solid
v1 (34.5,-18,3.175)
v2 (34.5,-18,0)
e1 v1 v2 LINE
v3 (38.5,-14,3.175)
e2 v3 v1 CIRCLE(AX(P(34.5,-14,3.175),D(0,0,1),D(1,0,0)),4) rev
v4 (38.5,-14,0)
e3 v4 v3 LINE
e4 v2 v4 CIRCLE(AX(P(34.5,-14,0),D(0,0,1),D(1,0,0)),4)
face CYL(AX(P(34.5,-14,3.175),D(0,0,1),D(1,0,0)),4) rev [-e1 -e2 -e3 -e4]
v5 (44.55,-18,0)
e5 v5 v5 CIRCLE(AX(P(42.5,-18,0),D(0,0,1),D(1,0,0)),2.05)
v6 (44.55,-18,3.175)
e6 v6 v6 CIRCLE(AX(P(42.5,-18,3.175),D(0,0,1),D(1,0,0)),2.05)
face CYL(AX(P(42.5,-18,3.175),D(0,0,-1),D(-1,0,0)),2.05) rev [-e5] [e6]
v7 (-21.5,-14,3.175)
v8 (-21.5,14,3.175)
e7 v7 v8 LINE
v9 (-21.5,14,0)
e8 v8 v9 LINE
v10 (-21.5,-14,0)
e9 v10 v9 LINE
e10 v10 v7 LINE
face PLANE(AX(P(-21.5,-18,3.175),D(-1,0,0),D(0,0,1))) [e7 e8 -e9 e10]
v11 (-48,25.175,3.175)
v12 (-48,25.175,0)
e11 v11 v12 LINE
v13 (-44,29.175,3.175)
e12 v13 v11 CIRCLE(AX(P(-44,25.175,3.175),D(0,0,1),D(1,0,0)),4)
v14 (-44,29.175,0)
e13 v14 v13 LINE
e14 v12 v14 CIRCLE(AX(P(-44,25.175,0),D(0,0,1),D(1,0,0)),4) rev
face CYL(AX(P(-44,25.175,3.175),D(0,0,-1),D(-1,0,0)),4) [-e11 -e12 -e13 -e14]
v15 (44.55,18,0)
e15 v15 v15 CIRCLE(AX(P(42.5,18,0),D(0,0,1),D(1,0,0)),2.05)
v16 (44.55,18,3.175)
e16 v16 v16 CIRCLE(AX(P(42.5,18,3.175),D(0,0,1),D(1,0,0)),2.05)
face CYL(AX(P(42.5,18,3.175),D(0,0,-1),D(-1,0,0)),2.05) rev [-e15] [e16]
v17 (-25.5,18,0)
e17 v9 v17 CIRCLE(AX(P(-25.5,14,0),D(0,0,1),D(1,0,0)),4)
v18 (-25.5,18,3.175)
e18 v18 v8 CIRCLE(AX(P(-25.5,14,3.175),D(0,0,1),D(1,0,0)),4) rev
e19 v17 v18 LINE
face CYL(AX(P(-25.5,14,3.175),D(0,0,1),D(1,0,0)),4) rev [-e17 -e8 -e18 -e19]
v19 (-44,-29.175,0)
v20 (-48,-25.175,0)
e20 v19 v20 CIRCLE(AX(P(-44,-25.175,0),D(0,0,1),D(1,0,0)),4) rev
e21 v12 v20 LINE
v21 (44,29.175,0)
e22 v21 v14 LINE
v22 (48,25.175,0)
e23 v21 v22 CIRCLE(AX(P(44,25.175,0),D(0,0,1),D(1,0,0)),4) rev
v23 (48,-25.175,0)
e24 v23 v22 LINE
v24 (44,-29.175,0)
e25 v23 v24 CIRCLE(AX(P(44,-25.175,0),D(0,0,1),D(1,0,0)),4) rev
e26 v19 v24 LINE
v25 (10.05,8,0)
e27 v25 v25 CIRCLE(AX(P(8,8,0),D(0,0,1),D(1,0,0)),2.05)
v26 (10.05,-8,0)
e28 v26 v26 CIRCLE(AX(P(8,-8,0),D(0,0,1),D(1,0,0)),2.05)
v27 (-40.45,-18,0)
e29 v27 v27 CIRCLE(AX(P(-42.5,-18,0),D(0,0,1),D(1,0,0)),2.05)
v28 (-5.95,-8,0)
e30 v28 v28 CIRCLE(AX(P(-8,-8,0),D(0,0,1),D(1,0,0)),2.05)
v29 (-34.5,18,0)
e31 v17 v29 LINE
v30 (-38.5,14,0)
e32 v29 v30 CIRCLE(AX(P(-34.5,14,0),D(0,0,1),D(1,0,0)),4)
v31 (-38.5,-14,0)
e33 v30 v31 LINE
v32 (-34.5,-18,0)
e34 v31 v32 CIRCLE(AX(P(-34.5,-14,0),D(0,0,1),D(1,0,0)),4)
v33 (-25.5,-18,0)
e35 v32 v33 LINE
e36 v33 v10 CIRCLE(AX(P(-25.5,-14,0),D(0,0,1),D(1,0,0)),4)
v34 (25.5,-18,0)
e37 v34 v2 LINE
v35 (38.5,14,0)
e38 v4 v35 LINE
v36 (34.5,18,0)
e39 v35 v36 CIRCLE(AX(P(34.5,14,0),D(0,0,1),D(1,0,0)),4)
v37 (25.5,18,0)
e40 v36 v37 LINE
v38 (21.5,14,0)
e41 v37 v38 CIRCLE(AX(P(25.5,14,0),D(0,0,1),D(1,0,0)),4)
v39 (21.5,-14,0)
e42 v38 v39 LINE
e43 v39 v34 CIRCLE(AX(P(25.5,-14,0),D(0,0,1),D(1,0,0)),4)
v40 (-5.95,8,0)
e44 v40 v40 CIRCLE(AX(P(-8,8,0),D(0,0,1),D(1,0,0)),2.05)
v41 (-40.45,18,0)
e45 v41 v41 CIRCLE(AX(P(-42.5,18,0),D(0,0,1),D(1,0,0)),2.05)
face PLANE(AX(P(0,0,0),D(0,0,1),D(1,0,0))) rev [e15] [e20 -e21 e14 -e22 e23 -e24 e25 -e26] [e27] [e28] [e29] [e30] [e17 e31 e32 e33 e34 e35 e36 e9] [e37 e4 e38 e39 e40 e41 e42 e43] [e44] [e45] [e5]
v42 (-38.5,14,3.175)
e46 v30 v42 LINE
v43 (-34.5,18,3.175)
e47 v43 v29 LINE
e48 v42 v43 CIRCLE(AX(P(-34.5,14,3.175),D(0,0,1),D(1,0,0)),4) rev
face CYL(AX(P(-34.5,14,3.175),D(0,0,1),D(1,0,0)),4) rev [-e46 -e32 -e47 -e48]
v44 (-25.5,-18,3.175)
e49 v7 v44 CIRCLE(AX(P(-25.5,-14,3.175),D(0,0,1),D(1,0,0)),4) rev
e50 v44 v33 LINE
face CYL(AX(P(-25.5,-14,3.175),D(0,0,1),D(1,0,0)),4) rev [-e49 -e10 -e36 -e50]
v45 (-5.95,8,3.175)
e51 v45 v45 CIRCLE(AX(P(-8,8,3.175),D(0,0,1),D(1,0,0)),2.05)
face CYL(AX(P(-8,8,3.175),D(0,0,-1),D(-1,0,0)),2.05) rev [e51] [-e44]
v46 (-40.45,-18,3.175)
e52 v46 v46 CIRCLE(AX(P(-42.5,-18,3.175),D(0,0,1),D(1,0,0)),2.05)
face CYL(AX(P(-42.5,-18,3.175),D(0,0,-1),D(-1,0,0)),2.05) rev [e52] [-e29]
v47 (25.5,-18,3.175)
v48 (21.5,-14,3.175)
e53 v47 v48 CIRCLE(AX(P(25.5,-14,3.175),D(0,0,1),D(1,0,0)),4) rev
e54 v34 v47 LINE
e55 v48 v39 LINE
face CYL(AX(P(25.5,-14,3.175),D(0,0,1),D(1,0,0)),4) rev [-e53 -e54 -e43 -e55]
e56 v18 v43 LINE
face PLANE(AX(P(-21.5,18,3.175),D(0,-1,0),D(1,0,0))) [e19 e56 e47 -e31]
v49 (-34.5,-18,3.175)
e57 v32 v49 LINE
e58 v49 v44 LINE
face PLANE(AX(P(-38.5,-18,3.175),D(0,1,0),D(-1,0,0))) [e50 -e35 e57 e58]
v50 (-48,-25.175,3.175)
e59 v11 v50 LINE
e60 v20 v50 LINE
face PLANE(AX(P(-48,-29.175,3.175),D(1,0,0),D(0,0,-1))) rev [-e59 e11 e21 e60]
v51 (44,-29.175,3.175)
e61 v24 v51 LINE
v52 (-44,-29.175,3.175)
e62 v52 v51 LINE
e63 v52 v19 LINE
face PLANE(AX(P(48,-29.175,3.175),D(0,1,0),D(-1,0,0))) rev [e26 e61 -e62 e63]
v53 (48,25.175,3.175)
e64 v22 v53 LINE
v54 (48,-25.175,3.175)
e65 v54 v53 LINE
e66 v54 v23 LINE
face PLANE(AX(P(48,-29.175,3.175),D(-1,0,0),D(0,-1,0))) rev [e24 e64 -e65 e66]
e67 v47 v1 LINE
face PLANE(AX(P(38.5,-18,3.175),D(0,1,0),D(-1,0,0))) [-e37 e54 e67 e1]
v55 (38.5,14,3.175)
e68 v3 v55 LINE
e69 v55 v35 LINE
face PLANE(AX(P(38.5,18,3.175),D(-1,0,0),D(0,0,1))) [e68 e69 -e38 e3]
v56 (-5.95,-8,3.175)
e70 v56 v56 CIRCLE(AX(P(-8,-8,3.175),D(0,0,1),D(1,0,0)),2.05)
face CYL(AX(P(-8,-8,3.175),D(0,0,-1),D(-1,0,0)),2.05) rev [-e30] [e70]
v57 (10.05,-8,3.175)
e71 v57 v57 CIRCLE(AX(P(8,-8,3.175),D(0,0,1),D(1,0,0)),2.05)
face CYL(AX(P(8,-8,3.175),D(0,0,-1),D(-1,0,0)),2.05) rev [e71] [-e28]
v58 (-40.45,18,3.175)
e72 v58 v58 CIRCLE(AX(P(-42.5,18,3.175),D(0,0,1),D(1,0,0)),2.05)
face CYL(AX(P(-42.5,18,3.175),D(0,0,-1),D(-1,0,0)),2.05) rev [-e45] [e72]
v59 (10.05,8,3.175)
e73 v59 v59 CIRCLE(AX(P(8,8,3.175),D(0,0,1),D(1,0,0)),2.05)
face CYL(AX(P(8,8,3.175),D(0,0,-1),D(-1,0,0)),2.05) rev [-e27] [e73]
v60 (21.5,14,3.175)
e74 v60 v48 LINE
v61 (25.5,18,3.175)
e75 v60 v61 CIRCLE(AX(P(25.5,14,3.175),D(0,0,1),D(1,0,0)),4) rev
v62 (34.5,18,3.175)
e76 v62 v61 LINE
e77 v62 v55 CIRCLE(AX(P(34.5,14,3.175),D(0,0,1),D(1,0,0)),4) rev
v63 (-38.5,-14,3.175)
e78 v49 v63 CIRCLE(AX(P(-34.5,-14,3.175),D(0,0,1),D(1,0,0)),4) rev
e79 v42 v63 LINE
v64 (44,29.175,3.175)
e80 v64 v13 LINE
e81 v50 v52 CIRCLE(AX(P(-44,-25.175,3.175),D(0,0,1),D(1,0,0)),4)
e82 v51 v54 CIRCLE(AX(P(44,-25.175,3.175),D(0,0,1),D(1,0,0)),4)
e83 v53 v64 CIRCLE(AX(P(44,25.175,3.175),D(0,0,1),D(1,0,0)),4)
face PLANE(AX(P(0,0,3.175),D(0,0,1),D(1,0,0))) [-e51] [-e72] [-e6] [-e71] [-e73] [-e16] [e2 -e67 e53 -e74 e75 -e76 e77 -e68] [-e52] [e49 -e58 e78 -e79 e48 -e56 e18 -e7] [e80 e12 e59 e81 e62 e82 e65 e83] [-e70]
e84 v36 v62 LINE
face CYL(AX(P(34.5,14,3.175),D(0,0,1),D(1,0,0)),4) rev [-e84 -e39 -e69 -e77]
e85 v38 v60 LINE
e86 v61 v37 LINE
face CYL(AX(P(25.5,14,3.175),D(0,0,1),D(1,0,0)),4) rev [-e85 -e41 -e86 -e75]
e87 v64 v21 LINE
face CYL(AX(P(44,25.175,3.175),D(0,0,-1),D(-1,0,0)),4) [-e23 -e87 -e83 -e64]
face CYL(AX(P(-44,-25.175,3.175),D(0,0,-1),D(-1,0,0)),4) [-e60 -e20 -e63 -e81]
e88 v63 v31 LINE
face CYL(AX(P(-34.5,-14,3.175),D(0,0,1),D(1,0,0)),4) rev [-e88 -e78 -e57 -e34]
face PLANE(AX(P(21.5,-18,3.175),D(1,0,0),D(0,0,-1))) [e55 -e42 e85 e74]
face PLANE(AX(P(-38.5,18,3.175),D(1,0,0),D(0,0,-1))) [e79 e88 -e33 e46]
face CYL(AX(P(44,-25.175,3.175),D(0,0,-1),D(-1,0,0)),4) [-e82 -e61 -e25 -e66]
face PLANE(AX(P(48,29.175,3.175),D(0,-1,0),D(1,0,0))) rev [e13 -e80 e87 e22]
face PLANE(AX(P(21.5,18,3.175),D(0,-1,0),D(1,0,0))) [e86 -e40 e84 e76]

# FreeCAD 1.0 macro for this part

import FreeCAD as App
import Part
import Sketcher

V = App.Vector


def edges_at(feature, points):
    """Names of the edges that pass closest to the given points."""
    edges = feature.Shape.Edges
    near = lambda p: min(range(len(edges)), key=lambda i: edges[i].distToShape(Part.Vertex(*p))[0])
    return sorted({f"Edge{near(p) + 1}" for p in points})

doc = App.newDocument("Part")
body = doc.addObject("PartDesign::Body", "Body")

# Sketch on XY plane
sketch1 = body.newObject("Sketcher::SketchObject", "Sketch")
sketch1.AttachmentSupport = (doc.getObject("XY_Plane"), [""])
sketch1.MapMode = "FlatFace"
sketch1.addGeometry(Part.LineSegment(V(-48, 29.2, 0), V(-48, -29.2, 0)), False)
sketch1.addGeometry(Part.LineSegment(V(-48, -29.2, 0), V(48, -29.2, 0)), False)
sketch1.addGeometry(Part.LineSegment(V(48, -29.2, 0), V(48, 29.2, 0)), False)
sketch1.addGeometry(Part.LineSegment(V(48, 29.2, 0), V(-48, 29.2, 0)), False)
sketch1.addGeometry(Part.Circle(V(-42.5, -18, 0), V(0, 0, 1), 2), False)
sketch1.addGeometry(Part.Circle(V(-8, -8, 0), V(0, 0, 1), 2), False)
sketch1.addGeometry(Part.Circle(V(42.5, -18, 0), V(0, 0, 1), 2), False)
sketch1.addGeometry(Part.Circle(V(8, -8, 0), V(0, 0, 1), 2), False)
sketch1.addGeometry(Part.LineSegment(V(-21.5, -18, 0), V(-38.5, -18, 0)), False)
sketch1.addGeometry(Part.LineSegment(V(-38.5, -18, 0), V(-38.5, 18, 0)), False)
sketch1.addGeometry(Part.LineSegment(V(-38.5, 18, 0), V(-21.5, 18, 0)), False)
sketch1.addGeometry(Part.LineSegment(V(-21.5, 18, 0), V(-21.5, -18, 0)), False)
sketch1.addGeometry(Part.Circle(V(-8, 8, 0), V(0, 0, 1), 2), False)
sketch1.addGeometry(Part.Circle(V(-42.5, 18, 0), V(0, 0, 1), 2), False)
sketch1.addGeometry(Part.Circle(V(8, 8, 0), V(0, 0, 1), 2), False)
sketch1.addGeometry(Part.LineSegment(V(38.5, -18, 0), V(21.5, -18, 0)), False)
sketch1.addGeometry(Part.LineSegment(V(21.5, -18, 0), V(21.5, 18, 0)), False)
sketch1.addGeometry(Part.LineSegment(V(21.5, 18, 0), V(38.5, 18, 0)), False)
sketch1.addGeometry(Part.LineSegment(V(38.5, 18, 0), V(38.5, -18, 0)), False)
sketch1.addGeometry(Part.Circle(V(42.5, 18, 0), V(0, 0, 1), 2), False)
sketch1.addConstraint(Sketcher.Constraint("Coincident", 0, 2, 1, 1))
sketch1.addConstraint(Sketcher.Constraint("Coincident", 1, 2, 2, 1))
sketch1.addConstraint(Sketcher.Constraint("Coincident", 2, 2, 3, 1))
sketch1.addConstraint(Sketcher.Constraint("Coincident", 3, 2, 0, 1))
sketch1.addConstraint(Sketcher.Constraint("Coincident", 8, 2, 9, 1))
sketch1.addConstraint(Sketcher.Constraint("Coincident", 9, 2, 10, 1))
sketch1.addConstraint(Sketcher.Constraint("Coincident", 10, 2, 11, 1))
sketch1.addConstraint(Sketcher.Constraint("Coincident", 11, 2, 8, 1))
sketch1.addConstraint(Sketcher.Constraint("Coincident", 15, 2, 16, 1))
sketch1.addConstraint(Sketcher.Constraint("Coincident", 16, 2, 17, 1))
sketch1.addConstraint(Sketcher.Constraint("Coincident", 17, 2, 18, 1))
sketch1.addConstraint(Sketcher.Constraint("Coincident", 18, 2, 15, 1))
sketch1.addConstraint(Sketcher.Constraint("Vertical", 0))
sketch1.addConstraint(Sketcher.Constraint("Horizontal", 1))
sketch1.addConstraint(Sketcher.Constraint("Vertical", 2))
sketch1.addConstraint(Sketcher.Constraint("Horizontal", 3))
sketch1.addConstraint(Sketcher.Constraint("Horizontal", 8))
sketch1.addConstraint(Sketcher.Constraint("Vertical", 9))
sketch1.addConstraint(Sketcher.Constraint("Horizontal", 10))
sketch1.addConstraint(Sketcher.Constraint("Vertical", 11))
sketch1.addConstraint(Sketcher.Constraint("Horizontal", 15))
sketch1.addConstraint(Sketcher.Constraint("Vertical", 16))
sketch1.addConstraint(Sketcher.Constraint("Horizontal", 17))
sketch1.addConstraint(Sketcher.Constraint("Vertical", 18))
sketch1.addConstraint(Sketcher.Constraint("Equal", 4, 5))
sketch1.addConstraint(Sketcher.Constraint("Equal", 5, 6))
sketch1.addConstraint(Sketcher.Constraint("Equal", 6, 7))
sketch1.addConstraint(Sketcher.Constraint("Equal", 7, 12))
sketch1.addConstraint(Sketcher.Constraint("Equal", 12, 13))
sketch1.addConstraint(Sketcher.Constraint("Equal", 13, 14))
sketch1.addConstraint(Sketcher.Constraint("Equal", 14, 19))
sketch1.addConstraint(Sketcher.Constraint("Symmetric", 7, 3, 12, 3, -1, 1))
sketch1.addConstraint(Sketcher.Constraint("Symmetric", 6, 3, 13, 3, -1, 1))
sketch1.addConstraint(Sketcher.Constraint("Symmetric", 5, 3, 14, 3, -1, 1))
sketch1.addConstraint(Sketcher.Constraint("Symmetric", 4, 3, 19, 3, -1, 1))
sketch1.addConstraint(Sketcher.Constraint("Symmetric", 0, 2, 2, 2, -1, 1))
sketch1.addConstraint(Sketcher.Constraint("Symmetric", 10, 2, 15, 2, -1, 1))
sketch1.addConstraint(Sketcher.Constraint("Symmetric", 8, 2, 17, 2, -1, 1))
sketch1.addConstraint(Sketcher.Constraint("Symmetric", 4, 3, 6, 3, -2))
sketch1.addConstraint(Sketcher.Constraint("Symmetric", 5, 3, 7, 3, -2))
sketch1.addConstraint(Sketcher.Constraint("Horizontal", 6, 3, 8, 2))
sketch1.addConstraint(Sketcher.Constraint("Horizontal", 19, 3, 9, 2))
sketch1.addConstraint(Sketcher.Constraint("Diameter", 4, 4.1))
sketch1.addConstraint(Sketcher.Constraint("DistanceX", 1, 1, 1, 2, 96.0))
sketch1.addConstraint(Sketcher.Constraint("DistanceX", 8, 2, 8, 1, 17.0))
sketch1.addConstraint(Sketcher.Constraint("DistanceY", 9, 1, 9, 2, 36.0))
sketch1.addConstraint(Sketcher.Constraint("DistanceX", 5, 3, -1, 1, 8.0))
sketch1.addConstraint(Sketcher.Constraint("DistanceY", 5, 3, -1, 1, 8.0))
sketch1.addConstraint(Sketcher.Constraint("DistanceX", 4, 3, 6, 3, 85.0))
sketch1.addConstraint(Sketcher.Constraint("DistanceX", 4, 3, 8, 2, 4.0))
sketch1.addConstraint(Sketcher.Constraint("DistanceY", 0, 2, 0, 1, 58.35))
pad1 = body.newObject("PartDesign::Pad", "Pad")
pad1.Profile = sketch1
pad1.Length = 3.175
doc.recompute()

fillet = body.newObject("PartDesign::Fillet", "Fillet")
fillet.Base = (pad1, edges_at(pad1, [
    (-21.5, 18, 1.587),
    (-38.5, 18, 1.587),
    (-38.5, -18, 1.587),
    (-21.5, -18, 1.587),
    (21.5, -18, 1.587),
    (38.5, -18, 1.587),
    (38.5, 18, 1.587),
    (21.5, 18, 1.587),
    (-48, 29.175, 1.587),
    (48, 29.175, 1.587),
    (48, -29.175, 1.587),
    (-48, -29.175, 1.587),
]))
fillet.Radius = 4

doc.recompute()
